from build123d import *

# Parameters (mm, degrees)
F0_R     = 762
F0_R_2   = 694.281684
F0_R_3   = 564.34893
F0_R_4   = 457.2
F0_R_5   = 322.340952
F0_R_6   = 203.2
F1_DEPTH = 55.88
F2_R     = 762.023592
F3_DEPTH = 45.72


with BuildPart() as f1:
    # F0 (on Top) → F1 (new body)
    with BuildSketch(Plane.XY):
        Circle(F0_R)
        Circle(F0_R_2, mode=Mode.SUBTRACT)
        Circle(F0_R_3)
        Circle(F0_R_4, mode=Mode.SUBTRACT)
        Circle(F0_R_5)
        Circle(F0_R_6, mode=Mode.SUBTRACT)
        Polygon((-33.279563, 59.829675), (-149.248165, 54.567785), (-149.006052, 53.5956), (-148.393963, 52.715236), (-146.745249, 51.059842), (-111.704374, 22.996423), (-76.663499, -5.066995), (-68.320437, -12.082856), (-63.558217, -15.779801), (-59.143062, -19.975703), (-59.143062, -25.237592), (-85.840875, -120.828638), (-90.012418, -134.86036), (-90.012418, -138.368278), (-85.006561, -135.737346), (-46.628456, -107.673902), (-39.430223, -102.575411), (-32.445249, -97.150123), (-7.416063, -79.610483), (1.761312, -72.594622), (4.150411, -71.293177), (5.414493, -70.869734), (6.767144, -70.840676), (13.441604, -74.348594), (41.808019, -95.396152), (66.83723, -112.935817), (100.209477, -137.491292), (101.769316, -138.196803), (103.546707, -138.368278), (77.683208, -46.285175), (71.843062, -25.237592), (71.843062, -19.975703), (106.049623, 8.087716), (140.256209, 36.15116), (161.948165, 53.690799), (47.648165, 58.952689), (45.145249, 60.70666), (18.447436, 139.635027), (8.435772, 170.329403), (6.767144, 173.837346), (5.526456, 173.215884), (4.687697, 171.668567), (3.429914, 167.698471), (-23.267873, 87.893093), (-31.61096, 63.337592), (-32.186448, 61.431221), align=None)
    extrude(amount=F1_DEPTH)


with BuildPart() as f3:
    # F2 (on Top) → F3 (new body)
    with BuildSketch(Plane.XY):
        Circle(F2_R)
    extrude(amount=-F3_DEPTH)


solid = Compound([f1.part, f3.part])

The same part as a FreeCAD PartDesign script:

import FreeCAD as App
import Part
import Sketcher

V = App.Vector
Q = App.Units.Quantity


def add_polygon(sketch, points):
    """Adds a closed chain of lines whose ends are joined by coincident constraints."""
    first, n = sketch.GeometryCount, len(points)
    for a, b in zip(points, points[1:] + points[:1]):
        sketch.addGeometry(Part.LineSegment(App.Vector(*a, 0), App.Vector(*b, 0)), False)
    for i in range(n):
        sketch.addConstraint(Sketcher.Constraint("Coincident", first + i, 2, first + (i + 1) % n, 1))

doc = App.newDocument("Part")
body = doc.addObject("PartDesign::Body", "Body")
body.AllowCompound = True

# Sketch on XY plane
sketch1 = body.newObject("Sketcher::SketchObject", "Sketch")
sketch1.AttachmentSupport = (doc.getObject("XY_Plane"), [""])
sketch1.MapMode = "FlatFace"
sketch1.addGeometry(Part.Circle(V(0, 0, 0), V(0, 0, 1), 762), False)  # 0
sketch1.addGeometry(Part.Circle(V(0, 0, 0), V(0, 0, 1), 694.3), False)  # 1
sketch1.addGeometry(Part.Circle(V(0, 0, 0), V(0, 0, 1), 564.3), False)  # 2
sketch1.addGeometry(Part.Circle(V(0, 0, 0), V(0, 0, 1), 457.2), False)  # 3
sketch1.addGeometry(Part.Circle(V(0, 0, 0), V(0, 0, 1), 322.3), False)  # 4
sketch1.addGeometry(Part.Circle(V(0, 0, 0), V(0, 0, 1), 203.2), False)  # 5
add_polygon(sketch1, [(-33.3, 59.8), (-149.2, 54.6), (-149, 53.6), (-148.4, 52.7), (-146.7, 51.1), (-111.7, 23), (-76.7, -5.1), (-68.3, -12.1), (-63.6, -15.8), (-59.1, -20), (-59.1, -25.2), (-85.8, -120.8), (-90, -134.9), (-90, -138.4), (-85, -135.7), (-46.6, -107.7), (-39.4, -102.6), (-32.4, -97.2), (-7.4, -79.6), (1.8, -72.6), (4.2, -71.3), (5.4, -70.9), (6.8, -70.8), (13.4, -74.3), (41.8, -95.4), (66.8, -112.9), (100.2, -137.5), (101.8, -138.2), (103.5, -138.4), (77.7, -46.3), (71.8, -25.2), (71.8, -20), (106, 8.1), (140.3, 36.2), (161.9, 53.7), (47.6, 59), (45.1, 60.7), (18.4, 139.6), (8.4, 170.3), (6.8, 173.8), (5.5, 173.2), (4.7, 171.7), (3.4, 167.7), (-23.3, 87.9), (-31.6, 63.3), (-32.2, 61.4)])  # lines 6-51
sketch1.addConstraint([
    Sketcher.Constraint("Vertical", 15),
    Sketcher.Constraint("Vertical", 18),
    Sketcher.Constraint("Vertical", 36),
    Sketcher.Constraint("Coincident", 0, 3, -1, 1),
    Sketcher.Constraint("Coincident", 1, 3, -1, 1),
    Sketcher.Constraint("Coincident", 2, 3, -1, 1),
    Sketcher.Constraint("Coincident", 3, 3, -1, 1),
    Sketcher.Constraint("Coincident", 4, 3, -1, 1),
    Sketcher.Constraint("Coincident", 5, 3, -1, 1),
    Sketcher.Constraint("Parallel", 10, 11),
    Sketcher.Constraint("Parallel", 37, 38),
    Sketcher.Constraint("Horizontal", 18, 2, 33, 2),
    Sketcher.Constraint("Horizontal", 15, 2, 35, 2),
    Sketcher.Constraint("Horizontal", 14, 2, 36, 2),
    Sketcher.Constraint("Vertical", 27, 2, 44, 2),
    Sketcher.Constraint("Equal", 10, 11),
    Sketcher.Constraint("Diameter", 0, Q("60 in")),
    Sketcher.Constraint("Diameter", 3, Q("36 in")),
    Sketcher.Constraint("Diameter", 5, Q("16 in")),
    Sketcher.Constraint("Diameter", 1, Q("1388.563368 mm")),
    Sketcher.Constraint("Diameter", 2, Q("1128.69786 mm")),
    Sketcher.Constraint("Diameter", 4, Q("644.681904 mm")),
    Sketcher.Constraint("DistanceX", 21, 2, 23, 2, Q("1.2604 in")),
    Sketcher.Constraint("DistanceX", 45, 2, 42, 2, Q("0.5087 in")),
    Sketcher.Constraint("DistanceY", 15, 2, 15, 1, Q("5.261889 mm")),
    Sketcher.Constraint("DistanceY", 18, 2, 18, 1, Q("3.507918 mm")),
    Sketcher.Constraint("DistanceY", -1, 1, 7, 2, Q("53.5956 mm")),
    Sketcher.Constraint("DistanceX", 11, 2, -1, 1, Q("76.663499 mm")),
    Sketcher.Constraint("DistanceY", 13, 2, -1, 1, Q("15.779801 mm")),
    Sketcher.Constraint("DistanceY", 20, 2, -1, 1, Q("107.673902 mm")),
    Sketcher.Constraint("DistanceY", -1, 1, 39, 2, Q("53.690799 mm")),
    Sketcher.Constraint("DistanceX", 6, 2, 8, 2, Q("0.854202 mm")),
    Sketcher.Constraint("DistanceY", 14, 2, 13, 2, Q("4.195902 mm")),
    Sketcher.Constraint("DistanceX", 17, 2, 13, 2, Q("26.454201 mm")),
    Sketcher.Constraint("DistanceX", 19, 2, 15, 2, Q("25.863499 mm")),
    Sketcher.Constraint("DistanceX", 15, 2, 23, 2, Q("51.726999 mm")),
    Sketcher.Constraint("DistanceY", 22, 2, 24, 2, Q("24.555501 mm")),
    Sketcher.Constraint("DistanceX", 24, 2, 25, 2, Q("2.389099 mm")),
    Sketcher.Constraint("DistanceY", 25, 2, 27, 2, Q("0.452501 mm")),
    Sketcher.Constraint("DistanceY", 27, 2, 34, 2, Q("24.555501 mm")),
    Sketcher.Constraint("DistanceX", 34, 2, 38, 2, Q("62.573001 mm")),
    Sketcher.Constraint("DistanceY", 49, 2, 48, 2, Q("24.555501 mm")),
    Sketcher.Constraint("Distance", 7, Q("1.001879 mm")),
    Sketcher.Constraint("Distance", 9, Q("2.336362 mm")),
    Sketcher.Constraint("Distance", 10, Q("44.893412 mm")),
    Sketcher.Constraint("Distance", 12, Q("10.900871 mm")),
    Sketcher.Constraint("Distance", 14, Q("6.09091 mm")),
    Sketcher.Constraint("Distance", 16, Q("99.249289 mm")),
    Sketcher.Constraint("Distance", 17, Q("14.638681 mm")),
    Sketcher.Constraint("Distance", 20, Q("47.544041 mm")),
    Sketcher.Constraint("Distance", 21, Q("8.820951 mm")),
    Sketcher.Constraint("Distance", 22, Q("8.844411 mm")),
    Sketcher.Constraint("Distance", 25, Q("2.72058 mm")),
    Sketcher.Constraint("Distance", 26, Q("1.333119 mm")),
    Sketcher.Constraint("Distance", 30, Q("30.56307 mm")),
    Sketcher.Constraint("Distance", 32, Q("1.711971 mm")),
    Sketcher.Constraint("Distance", 34, Q("95.64632 mm")),
    Sketcher.Constraint("Distance", 38, Q("44.24531 mm")),
    Sketcher.Constraint("Distance", 43, Q("32.285881 mm")),
    Sketcher.Constraint("Distance", 45, Q("1.387632 mm")),
    Sketcher.Constraint("Distance", 46, Q("1.76003 mm")),
    Sketcher.Constraint("Distance", 48, Q("84.15266 mm")),
    Sketcher.Constraint("Distance", 50, Q("1.99134 mm")),
    Sketcher.Constraint("DistanceX", 9, 2, -1, 1, Q("146.745249 mm")),
    Sketcher.Constraint("DistanceY", 16, 2, -1, 1, Q("120.828638 mm")),
    Sketcher.Constraint("DistanceX", 19, 2, -1, 1, Q("85.006561 mm")),
    Sketcher.Constraint("DistanceY", 21, 2, -1, 1, Q("102.575411 mm")),
    Sketcher.Constraint("DistanceX", 22, 2, -1, 1, Q("32.445249 mm")),
    Sketcher.Constraint("DistanceX", -1, 1, 25, 2, Q("4.150411 mm")),
    Sketcher.Constraint("DistanceX", -1, 1, 29, 2, Q("41.808019 mm")),
    Sketcher.Constraint("DistanceY", 29, 2, -1, 1, Q("95.396152 mm")),
    Sketcher.Constraint("DistanceX", -1, 1, 30, 2, Q("66.83723 mm")),
    Sketcher.Constraint("DistanceY", 31, 2, -1, 1, Q("137.491292 mm")),
    Sketcher.Constraint("DistanceX", -1, 1, 38, 2, Q("140.256209 mm")),
    Sketcher.Constraint("DistanceY", -1, 1, 38, 2, Q("36.15116 mm")),
    Sketcher.Constraint("DistanceY", -1, 1, 40, 2, Q("58.952689 mm")),
    Sketcher.Constraint("DistanceX", -1, 1, 41, 2, Q("45.145249 mm")),
    Sketcher.Constraint("DistanceY", -1, 1, 41, 2, Q("60.70666 mm")),
    Sketcher.Constraint("DistanceY", -1, 1, 47, 2, Q("167.698471 mm")),
    Sketcher.Constraint("DistanceX", 49, 2, -1, 1, Q("31.61096 mm")),
    Sketcher.Constraint("DistanceY", -1, 1, 50, 2, Q("61.431221 mm")),
    Sketcher.Constraint("DistanceX", 7, 2, 8, 2, Q("0.612089 mm")),
    Sketcher.Constraint("DistanceY", 8, 2, 6, 2, Q("1.852549 mm")),
    Sketcher.Constraint("DistanceX", 8, 2, 10, 2, Q("36.689589 mm")),
    Sketcher.Constraint("DistanceY", 12, 2, 11, 2, Q("7.015861 mm")),
    Sketcher.Constraint("DistanceY", 22, 2, 23, 2, Q("17.53964 mm")),
    Sketcher.Constraint("DistanceX", 24, 2, 26, 2, Q("3.653181 mm")),
    Sketcher.Constraint("DistanceX", 26, 2, 27, 2, Q("1.352651 mm")),
    Sketcher.Constraint("DistanceX", 27, 2, 28, 2, Q("6.67446 mm")),
    Sketcher.Constraint("DistanceY", 28, 2, 27, 2, Q("3.507918 mm")),
    Sketcher.Constraint("DistanceX", 29, 2, 31, 2, Q("58.401458 mm")),
    Sketcher.Constraint("DistanceX", 31, 2, 32, 2, Q("1.559839 mm")),
    Sketcher.Constraint("DistanceX", 36, 2, 37, 2, Q("34.206561 mm")),
    Sketcher.Constraint("DistanceX", 37, 2, 39, 2, Q("55.898542 mm")),
    Sketcher.Constraint("DistanceX", 42, 2, 40, 2, Q("29.200729 mm")),
    Sketcher.Constraint("DistanceY", 40, 2, 42, 2, Q("80.682338 mm")),
    Sketcher.Constraint("DistanceY", 42, 2, 44, 2, Q("34.202319 mm")),
    Sketcher.Constraint("DistanceX", 44, 2, 40, 2, Q("40.881021 mm")),
    Sketcher.Constraint("DistanceY", 43, 2, 45, 2, Q("2.886481 mm")),
    Sketcher.Constraint("DistanceX", 46, 2, 45, 2, Q("0.838759 mm")),
    Sketcher.Constraint("DistanceX", 47, 2, 45, 2, Q("2.096542 mm")),
    Sketcher.Constraint("DistanceX", 48, 2, 42, 2, Q("41.715309 mm")),
    Sketcher.Constraint("DistanceX", 51, 2, 48, 2, Q("10.01169 mm")),
    Sketcher.Constraint("Distance", 6, Q("116.087916 mm")),
])
pad1 = body.newObject("PartDesign::Pad", "Pad")
pad1.Profile = sketch1
pad1.Length = Q("2.2 in")
body2 = doc.addObject("PartDesign::Body", "Body001")

# Sketch on XY plane
sketch2 = body2.newObject("Sketcher::SketchObject", "Sketch001")
sketch2.AttachmentSupport = (doc.getObject("XY_Plane001"), [""])
sketch2.MapMode = "FlatFace"
sketch2.addGeometry(Part.Circle(V(0, 0, 0), V(0, 0, 1), 762), False)
sketch2.addConstraint([
    Sketcher.Constraint("Coincident", 0, 3, -1, 1),
    Sketcher.Constraint("Diameter", 0, Q("1524.047184 mm")),
])
pad2 = body2.newObject("PartDesign::Pad", "Pad001")
pad2.Profile = sketch2
pad2.Length = Q("1.8 in")
pad2.Reversed = True

doc.recompute()
